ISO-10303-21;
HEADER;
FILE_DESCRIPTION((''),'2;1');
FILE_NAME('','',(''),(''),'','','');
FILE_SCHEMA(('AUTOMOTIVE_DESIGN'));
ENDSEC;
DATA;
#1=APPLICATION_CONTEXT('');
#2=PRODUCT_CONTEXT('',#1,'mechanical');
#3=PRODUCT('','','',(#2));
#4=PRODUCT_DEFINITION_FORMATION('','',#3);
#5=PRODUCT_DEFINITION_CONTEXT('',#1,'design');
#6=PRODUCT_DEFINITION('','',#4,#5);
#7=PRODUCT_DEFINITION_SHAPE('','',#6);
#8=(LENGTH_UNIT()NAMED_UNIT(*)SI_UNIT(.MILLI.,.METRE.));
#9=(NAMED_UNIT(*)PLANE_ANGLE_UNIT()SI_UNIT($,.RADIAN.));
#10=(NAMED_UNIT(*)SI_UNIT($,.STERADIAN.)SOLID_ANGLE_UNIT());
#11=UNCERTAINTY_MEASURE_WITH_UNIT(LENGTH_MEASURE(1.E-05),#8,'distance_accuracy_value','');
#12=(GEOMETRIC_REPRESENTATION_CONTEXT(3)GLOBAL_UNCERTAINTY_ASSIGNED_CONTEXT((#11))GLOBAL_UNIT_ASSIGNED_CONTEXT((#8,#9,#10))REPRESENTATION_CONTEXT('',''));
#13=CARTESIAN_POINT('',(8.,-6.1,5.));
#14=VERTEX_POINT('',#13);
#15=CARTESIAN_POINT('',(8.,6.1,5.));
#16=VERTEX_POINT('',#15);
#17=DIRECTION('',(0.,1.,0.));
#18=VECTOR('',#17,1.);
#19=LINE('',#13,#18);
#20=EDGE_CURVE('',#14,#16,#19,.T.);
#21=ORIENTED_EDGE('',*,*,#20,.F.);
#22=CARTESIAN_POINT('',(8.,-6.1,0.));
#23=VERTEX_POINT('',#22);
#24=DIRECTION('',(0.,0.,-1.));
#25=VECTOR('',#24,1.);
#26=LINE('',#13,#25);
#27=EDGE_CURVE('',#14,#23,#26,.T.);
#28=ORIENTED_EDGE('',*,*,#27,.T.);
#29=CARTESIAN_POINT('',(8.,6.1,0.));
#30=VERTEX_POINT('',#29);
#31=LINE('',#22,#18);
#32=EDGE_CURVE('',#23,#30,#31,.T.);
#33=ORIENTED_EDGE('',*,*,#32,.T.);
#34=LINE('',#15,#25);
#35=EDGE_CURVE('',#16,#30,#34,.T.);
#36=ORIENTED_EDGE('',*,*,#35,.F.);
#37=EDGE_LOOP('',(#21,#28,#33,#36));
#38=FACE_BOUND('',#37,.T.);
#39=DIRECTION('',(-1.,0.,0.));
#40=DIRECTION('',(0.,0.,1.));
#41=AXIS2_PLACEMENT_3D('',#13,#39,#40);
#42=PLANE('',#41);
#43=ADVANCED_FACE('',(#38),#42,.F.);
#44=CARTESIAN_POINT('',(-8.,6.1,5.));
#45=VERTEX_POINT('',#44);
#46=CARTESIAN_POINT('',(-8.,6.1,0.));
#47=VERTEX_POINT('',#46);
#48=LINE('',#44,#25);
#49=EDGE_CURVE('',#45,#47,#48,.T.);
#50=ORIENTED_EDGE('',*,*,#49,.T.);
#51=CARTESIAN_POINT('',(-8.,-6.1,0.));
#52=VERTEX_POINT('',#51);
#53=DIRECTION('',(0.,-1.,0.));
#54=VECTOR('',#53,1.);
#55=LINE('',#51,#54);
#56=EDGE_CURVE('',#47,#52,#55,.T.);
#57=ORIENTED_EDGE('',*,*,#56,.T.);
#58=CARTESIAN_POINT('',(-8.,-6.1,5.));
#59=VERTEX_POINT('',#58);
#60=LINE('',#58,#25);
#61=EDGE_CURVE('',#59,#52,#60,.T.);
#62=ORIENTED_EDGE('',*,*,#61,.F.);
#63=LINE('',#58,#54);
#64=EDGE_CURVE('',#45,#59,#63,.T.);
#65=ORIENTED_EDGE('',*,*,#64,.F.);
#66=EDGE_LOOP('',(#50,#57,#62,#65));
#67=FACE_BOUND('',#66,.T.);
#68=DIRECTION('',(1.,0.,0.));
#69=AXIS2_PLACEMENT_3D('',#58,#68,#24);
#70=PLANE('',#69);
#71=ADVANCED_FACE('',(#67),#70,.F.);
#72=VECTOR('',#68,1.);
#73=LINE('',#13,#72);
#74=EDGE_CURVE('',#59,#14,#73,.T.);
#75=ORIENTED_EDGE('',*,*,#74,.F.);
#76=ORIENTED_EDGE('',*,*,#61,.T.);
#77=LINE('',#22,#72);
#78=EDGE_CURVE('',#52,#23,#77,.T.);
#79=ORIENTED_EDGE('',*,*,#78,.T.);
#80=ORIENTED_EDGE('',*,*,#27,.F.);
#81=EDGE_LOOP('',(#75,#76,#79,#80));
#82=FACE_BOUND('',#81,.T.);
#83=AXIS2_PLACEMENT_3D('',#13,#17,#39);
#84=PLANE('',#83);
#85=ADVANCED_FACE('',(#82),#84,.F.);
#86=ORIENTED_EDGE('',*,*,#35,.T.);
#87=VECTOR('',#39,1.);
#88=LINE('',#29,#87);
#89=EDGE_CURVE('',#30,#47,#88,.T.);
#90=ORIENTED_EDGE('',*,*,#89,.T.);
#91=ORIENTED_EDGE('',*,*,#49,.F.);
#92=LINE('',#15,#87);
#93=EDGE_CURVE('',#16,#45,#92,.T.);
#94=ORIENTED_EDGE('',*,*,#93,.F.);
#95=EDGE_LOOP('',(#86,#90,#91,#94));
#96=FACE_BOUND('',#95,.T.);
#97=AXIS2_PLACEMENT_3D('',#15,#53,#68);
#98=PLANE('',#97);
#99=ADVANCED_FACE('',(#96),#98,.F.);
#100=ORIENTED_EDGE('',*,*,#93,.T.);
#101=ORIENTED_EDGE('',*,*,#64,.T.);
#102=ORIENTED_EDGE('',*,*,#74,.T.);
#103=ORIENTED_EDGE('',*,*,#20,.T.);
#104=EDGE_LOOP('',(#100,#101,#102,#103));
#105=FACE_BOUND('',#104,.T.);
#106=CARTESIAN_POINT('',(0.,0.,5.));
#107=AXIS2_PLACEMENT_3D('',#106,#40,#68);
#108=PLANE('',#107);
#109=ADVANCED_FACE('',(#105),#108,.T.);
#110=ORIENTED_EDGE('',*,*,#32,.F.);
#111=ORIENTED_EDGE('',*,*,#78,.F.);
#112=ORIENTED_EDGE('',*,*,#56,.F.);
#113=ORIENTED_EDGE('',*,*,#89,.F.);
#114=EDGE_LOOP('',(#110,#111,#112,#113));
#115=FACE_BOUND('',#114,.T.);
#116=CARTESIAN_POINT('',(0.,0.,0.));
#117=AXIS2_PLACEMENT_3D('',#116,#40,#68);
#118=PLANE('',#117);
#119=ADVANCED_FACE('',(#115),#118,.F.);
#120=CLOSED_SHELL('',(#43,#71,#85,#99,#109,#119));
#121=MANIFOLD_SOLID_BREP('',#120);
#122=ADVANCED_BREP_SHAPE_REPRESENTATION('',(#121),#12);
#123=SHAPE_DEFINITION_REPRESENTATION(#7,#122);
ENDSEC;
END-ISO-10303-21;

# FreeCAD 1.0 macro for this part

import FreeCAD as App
import Part
import Sketcher
Q = App.Units.Quantity


def add_polygon(sketch, points):
    """Adds a closed chain of lines whose ends are joined by coincident constraints."""
    first, n = sketch.GeometryCount, len(points)
    for a, b in zip(points, points[1:] + points[:1]):
        sketch.addGeometry(Part.LineSegment(App.Vector(*a, 0), App.Vector(*b, 0)), False)
    for i in range(n):
        sketch.addConstraint(Sketcher.Constraint("Coincident", first + i, 2, first + (i + 1) % n, 1))

doc = App.newDocument("Part")
body = doc.addObject("PartDesign::Body", "Body")

sketch1 = body.newObject("Sketcher::SketchObject", "Sketch")
sketch1.AttachmentSupport = (doc.getObject("XY_Plane"), [""])
sketch1.MapMode = "FlatFace"
add_polygon(sketch1, [(-8, 6.1), (-8, -6.1), (8, -6.1), (8, 6.1)])
sketch1.addConstraint(Sketcher.Constraint("Vertical", 0))
sketch1.addConstraint(Sketcher.Constraint("Horizontal", 1))
sketch1.addConstraint(Sketcher.Constraint("Vertical", 2))
sketch1.addConstraint(Sketcher.Constraint("Horizontal", 3))
sketch1.addConstraint(Sketcher.Constraint("Symmetric", 0, 2, 2, 2, -1, 1))
sketch1.addConstraint(Sketcher.Constraint("DistanceX", 1, 1, 1, 2, Q("16 mm")))
sketch1.addConstraint(Sketcher.Constraint("DistanceY", 0, 2, 0, 1, Q("12.2 mm")))
pad1 = body.newObject("PartDesign::Pad", "Pad")
pad1.Profile = sketch1
pad1.Length = 5

doc.recompute()
